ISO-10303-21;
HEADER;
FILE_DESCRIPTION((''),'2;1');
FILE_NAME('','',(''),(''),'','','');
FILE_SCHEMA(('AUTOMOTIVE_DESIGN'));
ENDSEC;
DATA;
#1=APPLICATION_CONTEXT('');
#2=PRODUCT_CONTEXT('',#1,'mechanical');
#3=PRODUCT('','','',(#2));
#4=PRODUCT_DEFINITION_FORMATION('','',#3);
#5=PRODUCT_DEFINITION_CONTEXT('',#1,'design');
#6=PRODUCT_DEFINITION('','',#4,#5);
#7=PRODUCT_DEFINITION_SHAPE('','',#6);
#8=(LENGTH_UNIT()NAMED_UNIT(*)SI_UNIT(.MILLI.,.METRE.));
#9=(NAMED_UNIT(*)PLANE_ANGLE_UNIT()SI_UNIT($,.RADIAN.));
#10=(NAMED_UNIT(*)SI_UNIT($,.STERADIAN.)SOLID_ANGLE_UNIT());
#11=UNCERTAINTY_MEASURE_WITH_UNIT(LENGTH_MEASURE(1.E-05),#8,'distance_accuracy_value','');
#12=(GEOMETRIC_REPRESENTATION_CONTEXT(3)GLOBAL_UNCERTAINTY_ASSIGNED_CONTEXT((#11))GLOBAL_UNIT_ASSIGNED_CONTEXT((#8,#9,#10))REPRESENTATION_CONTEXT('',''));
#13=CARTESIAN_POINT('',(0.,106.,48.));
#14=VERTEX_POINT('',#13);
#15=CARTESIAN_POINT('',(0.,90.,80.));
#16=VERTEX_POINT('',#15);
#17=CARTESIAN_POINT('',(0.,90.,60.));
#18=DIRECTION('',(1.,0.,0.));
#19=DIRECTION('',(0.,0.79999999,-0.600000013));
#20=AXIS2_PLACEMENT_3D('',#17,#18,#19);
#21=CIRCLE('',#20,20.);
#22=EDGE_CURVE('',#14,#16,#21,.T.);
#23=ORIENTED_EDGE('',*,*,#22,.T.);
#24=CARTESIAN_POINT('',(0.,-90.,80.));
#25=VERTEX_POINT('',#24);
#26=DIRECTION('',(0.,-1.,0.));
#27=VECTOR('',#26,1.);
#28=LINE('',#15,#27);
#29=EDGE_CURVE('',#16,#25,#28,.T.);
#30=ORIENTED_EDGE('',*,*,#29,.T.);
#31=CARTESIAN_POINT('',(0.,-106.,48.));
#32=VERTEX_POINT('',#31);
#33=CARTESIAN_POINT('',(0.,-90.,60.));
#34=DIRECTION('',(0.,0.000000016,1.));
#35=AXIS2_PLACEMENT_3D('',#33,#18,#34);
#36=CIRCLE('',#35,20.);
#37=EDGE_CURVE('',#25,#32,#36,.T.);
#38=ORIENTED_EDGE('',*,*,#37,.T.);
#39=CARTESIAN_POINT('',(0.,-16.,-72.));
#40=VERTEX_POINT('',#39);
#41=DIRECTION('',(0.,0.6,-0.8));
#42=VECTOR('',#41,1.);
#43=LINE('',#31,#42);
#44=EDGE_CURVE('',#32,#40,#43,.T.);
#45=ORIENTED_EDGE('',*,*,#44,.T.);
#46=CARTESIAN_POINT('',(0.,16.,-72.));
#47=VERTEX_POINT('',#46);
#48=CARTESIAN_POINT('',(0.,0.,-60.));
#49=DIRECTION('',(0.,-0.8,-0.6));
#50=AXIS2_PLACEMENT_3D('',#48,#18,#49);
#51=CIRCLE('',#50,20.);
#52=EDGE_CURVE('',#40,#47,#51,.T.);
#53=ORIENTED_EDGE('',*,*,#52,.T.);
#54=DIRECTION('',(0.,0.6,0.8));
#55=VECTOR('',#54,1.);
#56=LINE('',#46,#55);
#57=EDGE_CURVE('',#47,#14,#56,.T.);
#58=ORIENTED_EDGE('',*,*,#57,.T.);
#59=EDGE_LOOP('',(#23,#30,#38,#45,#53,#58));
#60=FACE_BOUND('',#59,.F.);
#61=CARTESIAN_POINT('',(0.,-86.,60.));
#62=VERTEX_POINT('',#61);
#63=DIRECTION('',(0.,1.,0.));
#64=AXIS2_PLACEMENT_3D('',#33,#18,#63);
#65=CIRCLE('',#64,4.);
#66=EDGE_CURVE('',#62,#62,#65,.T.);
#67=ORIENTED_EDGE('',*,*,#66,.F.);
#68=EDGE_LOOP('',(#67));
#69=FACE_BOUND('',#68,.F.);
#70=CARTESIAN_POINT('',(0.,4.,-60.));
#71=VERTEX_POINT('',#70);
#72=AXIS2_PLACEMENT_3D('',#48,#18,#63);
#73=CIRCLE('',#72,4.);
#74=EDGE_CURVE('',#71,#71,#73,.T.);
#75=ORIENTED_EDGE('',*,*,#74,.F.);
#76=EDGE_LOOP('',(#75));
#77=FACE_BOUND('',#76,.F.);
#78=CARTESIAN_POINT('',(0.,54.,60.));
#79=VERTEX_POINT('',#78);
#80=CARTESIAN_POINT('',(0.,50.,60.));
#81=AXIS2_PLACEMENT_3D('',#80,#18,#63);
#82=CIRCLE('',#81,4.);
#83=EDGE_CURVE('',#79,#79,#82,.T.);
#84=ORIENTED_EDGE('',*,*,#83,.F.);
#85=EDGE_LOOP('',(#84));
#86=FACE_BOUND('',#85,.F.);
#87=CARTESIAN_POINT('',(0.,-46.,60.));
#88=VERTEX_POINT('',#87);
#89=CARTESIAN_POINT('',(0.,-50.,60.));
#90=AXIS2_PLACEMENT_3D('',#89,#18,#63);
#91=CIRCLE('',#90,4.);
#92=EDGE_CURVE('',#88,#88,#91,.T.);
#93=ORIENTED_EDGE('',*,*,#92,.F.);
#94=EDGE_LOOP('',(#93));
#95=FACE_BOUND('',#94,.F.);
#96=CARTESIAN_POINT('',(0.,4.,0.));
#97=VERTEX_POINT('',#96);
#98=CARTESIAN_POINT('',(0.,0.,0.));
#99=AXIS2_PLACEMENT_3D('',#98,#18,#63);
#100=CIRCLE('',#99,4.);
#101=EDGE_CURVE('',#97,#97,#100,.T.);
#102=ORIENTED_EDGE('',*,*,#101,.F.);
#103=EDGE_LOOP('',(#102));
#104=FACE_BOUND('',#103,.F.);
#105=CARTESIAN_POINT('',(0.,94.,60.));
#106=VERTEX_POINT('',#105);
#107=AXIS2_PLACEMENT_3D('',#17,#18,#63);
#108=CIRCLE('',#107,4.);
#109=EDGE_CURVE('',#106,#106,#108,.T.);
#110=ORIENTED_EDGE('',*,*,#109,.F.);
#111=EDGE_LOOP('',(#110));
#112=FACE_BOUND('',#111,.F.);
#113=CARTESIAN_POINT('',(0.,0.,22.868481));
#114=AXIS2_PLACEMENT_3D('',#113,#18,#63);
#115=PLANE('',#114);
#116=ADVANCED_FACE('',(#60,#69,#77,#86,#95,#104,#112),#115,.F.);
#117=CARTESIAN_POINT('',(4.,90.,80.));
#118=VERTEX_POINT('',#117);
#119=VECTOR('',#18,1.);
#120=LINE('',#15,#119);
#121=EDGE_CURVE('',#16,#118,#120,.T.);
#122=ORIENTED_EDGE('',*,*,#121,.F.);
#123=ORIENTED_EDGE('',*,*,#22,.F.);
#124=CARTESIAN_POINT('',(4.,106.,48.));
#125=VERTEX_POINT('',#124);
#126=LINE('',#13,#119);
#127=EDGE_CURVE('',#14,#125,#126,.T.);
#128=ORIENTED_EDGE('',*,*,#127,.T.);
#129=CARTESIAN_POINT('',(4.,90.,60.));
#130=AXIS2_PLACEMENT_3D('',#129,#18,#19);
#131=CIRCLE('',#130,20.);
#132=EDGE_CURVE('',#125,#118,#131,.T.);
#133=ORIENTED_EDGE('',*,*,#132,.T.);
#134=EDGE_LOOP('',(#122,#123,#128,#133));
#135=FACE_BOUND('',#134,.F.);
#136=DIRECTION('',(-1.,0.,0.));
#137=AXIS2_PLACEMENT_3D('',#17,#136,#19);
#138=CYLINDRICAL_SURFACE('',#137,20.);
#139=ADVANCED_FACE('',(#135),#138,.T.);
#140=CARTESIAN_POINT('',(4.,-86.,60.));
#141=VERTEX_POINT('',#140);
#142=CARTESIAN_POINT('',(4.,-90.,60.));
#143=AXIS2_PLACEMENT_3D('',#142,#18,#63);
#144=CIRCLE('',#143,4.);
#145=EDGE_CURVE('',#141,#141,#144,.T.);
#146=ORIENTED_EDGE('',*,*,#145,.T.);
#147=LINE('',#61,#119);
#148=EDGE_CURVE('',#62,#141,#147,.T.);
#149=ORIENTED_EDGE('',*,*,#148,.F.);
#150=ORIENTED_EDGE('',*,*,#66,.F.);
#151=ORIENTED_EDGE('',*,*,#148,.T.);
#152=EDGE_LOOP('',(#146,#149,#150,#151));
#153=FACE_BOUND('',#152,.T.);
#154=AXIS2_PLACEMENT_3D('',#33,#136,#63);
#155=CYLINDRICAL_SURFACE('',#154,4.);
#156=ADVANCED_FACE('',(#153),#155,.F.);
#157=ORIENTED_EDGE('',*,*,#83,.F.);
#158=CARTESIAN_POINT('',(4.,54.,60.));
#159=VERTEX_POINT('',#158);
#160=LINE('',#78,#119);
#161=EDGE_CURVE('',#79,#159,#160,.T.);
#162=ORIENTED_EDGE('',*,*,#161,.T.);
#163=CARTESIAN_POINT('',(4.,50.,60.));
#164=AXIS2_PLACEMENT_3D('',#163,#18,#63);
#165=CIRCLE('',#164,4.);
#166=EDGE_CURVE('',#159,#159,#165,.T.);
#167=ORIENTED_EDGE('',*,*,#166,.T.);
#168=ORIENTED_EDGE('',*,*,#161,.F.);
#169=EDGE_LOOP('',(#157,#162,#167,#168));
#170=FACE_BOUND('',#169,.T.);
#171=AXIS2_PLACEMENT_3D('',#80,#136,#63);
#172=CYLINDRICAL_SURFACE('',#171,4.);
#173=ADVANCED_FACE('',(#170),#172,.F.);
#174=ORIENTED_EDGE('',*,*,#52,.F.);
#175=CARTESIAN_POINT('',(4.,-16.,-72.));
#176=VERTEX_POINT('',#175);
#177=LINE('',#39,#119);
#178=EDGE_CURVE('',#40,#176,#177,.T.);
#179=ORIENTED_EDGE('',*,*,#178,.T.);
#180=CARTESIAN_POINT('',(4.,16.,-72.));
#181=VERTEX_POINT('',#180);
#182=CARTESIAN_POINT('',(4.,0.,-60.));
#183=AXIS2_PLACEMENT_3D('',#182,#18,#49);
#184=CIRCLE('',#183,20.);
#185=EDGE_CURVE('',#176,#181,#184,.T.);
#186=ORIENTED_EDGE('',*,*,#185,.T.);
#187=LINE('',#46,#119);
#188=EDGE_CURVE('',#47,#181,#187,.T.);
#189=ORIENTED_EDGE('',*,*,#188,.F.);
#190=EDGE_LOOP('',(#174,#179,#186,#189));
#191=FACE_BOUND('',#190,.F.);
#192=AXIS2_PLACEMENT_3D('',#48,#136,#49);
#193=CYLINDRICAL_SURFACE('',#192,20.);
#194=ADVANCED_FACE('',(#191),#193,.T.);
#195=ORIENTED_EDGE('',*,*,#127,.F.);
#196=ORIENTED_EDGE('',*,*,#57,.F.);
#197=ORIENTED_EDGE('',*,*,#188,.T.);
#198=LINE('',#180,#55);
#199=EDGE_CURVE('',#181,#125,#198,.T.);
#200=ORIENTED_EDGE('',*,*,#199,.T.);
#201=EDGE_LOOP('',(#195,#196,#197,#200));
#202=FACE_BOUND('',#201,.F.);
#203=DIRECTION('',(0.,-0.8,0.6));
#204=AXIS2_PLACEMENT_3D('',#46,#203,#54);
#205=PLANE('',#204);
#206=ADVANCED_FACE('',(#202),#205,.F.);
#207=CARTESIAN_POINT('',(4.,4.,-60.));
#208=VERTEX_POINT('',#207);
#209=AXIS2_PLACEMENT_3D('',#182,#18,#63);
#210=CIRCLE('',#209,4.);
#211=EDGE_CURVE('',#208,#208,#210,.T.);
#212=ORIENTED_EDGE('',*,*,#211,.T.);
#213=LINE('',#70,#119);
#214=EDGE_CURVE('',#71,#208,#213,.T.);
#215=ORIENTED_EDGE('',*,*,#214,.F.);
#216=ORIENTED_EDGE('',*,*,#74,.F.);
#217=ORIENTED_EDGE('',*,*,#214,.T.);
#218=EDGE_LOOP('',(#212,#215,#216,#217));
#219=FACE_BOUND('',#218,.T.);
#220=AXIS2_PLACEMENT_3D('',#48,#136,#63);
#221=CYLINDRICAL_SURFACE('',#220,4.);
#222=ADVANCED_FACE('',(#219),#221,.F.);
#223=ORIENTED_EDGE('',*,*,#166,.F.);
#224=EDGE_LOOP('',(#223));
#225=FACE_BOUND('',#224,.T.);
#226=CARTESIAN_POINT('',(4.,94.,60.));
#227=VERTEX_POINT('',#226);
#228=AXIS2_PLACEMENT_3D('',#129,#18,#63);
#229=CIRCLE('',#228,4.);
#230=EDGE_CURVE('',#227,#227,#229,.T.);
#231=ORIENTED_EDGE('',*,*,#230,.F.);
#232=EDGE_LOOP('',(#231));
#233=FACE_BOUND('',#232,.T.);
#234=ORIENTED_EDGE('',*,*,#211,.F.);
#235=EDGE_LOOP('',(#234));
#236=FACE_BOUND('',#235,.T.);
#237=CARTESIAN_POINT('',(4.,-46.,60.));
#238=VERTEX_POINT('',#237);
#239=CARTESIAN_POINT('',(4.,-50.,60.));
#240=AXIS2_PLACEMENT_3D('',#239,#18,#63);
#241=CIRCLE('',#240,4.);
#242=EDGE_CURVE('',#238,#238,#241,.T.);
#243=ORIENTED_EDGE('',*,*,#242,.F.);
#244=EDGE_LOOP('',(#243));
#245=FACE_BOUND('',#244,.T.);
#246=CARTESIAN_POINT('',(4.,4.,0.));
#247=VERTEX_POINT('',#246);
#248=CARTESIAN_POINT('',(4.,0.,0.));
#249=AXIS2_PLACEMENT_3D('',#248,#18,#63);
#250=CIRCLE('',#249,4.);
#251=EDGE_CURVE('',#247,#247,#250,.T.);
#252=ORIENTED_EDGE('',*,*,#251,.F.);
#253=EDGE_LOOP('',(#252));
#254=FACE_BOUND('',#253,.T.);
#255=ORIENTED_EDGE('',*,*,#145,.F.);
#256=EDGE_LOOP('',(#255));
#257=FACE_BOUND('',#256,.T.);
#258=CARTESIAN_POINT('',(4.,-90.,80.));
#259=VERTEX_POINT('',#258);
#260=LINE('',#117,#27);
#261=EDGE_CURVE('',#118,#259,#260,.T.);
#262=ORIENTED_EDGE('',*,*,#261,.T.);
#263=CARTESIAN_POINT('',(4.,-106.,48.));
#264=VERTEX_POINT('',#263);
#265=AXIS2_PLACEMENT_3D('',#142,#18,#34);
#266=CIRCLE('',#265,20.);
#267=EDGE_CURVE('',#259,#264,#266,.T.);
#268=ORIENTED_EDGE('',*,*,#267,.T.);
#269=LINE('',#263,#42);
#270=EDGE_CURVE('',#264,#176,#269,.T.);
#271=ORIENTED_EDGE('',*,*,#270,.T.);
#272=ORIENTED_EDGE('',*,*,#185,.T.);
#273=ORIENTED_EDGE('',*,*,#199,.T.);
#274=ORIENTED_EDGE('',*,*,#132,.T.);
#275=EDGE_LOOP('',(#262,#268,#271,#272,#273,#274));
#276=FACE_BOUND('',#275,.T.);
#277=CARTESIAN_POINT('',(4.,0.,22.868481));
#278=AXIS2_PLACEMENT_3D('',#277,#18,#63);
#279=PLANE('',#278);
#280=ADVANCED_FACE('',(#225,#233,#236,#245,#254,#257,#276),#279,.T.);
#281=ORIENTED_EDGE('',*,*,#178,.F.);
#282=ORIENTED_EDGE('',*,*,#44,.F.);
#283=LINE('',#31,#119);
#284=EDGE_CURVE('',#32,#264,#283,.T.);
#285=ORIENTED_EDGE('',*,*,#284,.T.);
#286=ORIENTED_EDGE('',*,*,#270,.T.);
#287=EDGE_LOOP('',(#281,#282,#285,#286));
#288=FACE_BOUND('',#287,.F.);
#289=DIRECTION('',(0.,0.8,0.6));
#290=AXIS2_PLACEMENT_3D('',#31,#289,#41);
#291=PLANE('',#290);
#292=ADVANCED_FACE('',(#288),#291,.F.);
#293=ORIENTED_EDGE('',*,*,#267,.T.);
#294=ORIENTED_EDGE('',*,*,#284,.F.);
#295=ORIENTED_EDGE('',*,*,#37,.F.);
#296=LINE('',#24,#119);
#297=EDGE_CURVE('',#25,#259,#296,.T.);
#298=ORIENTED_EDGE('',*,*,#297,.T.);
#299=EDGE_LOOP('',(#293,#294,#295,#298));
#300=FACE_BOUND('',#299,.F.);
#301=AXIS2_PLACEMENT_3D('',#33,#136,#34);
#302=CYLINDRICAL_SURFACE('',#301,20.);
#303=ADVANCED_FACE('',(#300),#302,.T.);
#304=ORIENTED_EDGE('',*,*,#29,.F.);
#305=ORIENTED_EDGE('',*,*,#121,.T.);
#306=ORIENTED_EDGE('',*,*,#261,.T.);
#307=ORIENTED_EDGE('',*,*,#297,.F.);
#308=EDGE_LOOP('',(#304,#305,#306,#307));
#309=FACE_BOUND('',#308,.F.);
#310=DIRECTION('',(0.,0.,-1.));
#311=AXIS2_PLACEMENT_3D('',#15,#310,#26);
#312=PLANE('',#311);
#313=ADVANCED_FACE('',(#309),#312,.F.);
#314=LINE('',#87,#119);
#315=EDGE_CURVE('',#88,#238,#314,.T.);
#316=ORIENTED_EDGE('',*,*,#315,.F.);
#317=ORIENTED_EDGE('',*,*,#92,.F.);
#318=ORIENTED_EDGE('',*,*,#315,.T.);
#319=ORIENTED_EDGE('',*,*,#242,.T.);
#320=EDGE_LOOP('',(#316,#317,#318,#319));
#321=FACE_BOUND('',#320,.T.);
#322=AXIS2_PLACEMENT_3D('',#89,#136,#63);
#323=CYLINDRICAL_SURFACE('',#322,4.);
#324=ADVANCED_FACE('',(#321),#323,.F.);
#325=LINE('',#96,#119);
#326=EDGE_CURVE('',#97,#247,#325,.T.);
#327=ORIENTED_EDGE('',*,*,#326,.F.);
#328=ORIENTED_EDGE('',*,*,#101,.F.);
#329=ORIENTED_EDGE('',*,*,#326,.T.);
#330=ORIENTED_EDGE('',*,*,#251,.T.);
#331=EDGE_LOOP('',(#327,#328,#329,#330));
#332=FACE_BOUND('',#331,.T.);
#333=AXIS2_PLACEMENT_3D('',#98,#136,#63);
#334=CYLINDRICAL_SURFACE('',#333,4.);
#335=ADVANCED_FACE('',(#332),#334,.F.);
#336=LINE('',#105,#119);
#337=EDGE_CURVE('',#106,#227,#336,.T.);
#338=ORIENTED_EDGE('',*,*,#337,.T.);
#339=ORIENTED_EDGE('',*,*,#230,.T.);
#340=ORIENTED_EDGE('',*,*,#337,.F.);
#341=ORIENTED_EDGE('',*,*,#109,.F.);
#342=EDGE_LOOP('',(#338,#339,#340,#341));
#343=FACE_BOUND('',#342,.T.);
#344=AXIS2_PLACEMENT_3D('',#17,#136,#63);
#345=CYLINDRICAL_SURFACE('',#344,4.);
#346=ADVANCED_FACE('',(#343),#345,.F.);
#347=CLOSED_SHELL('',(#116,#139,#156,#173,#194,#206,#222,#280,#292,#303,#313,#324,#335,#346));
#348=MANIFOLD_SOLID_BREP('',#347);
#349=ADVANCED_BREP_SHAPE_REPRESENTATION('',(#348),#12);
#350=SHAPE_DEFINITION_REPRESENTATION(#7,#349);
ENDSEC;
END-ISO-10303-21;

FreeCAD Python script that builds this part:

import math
import FreeCAD as App
import Part
import Sketcher
from FreeCAD import Vector
Q = App.Units.Quantity

doc = App.newDocument("Part")
body = doc.addObject("PartDesign::Body", "Body")

sketch1 = doc.addObject("Sketcher::SketchObject", "Sketch")
body.addObject(sketch1)
sketch1.AttachmentSupport = (doc.YZ_Plane, [""])
sketch1.MapMode = "FlatFace"
sketch1.addGeometry([
    Part.LineSegment(Vector(-106, 48, 0), Vector(-16, -72, 0)),
    Part.ArcOfCircle(Part.Circle(Vector(0, -60, 0), Vector(0, 0, 1), 20), math.radians(-143.130102), math.radians(-36.869898)),
    Part.LineSegment(Vector(16, -72, 0), Vector(106, 48, 0)),
    Part.ArcOfCircle(Part.Circle(Vector(90, 60, 0), Vector(0, 0, 1), 20), math.radians(-36.869899), math.radians(90.000001)),
    Part.LineSegment(Vector(90, 80, 0), Vector(-90, 80, 0)),
    Part.ArcOfCircle(Part.Circle(Vector(-90, 60, 0), Vector(0, 0, 1), 20), math.radians(89.999999), math.radians(216.869899)),
    Part.Circle(Vector(0, -60, 0), Vector(0, 0, 1), 4),
    Part.Circle(Vector(-90, 60, 0), Vector(0, 0, 1), 4),
    Part.Circle(Vector(-50, 60, 0), Vector(0, 0, 1), 4),
    Part.Circle(Vector(0, 0, 0), Vector(0, 0, 1), 4),
    Part.Circle(Vector(50, 60, 0), Vector(0, 0, 1), 4),
    Part.Circle(Vector(90, 60, 0), Vector(0, 0, 1), 4),
], False)
sketch1.addConstraint([
    Sketcher.Constraint("Tangent", 0, 2, 1, 1),
    Sketcher.Constraint("Tangent", 1, 2, 2, 1),
    Sketcher.Constraint("Tangent", 2, 2, 3, 1),
    Sketcher.Constraint("Tangent", 3, 2, 4, 1),
    Sketcher.Constraint("Tangent", 4, 2, 5, 1),
    Sketcher.Constraint("Tangent", 5, 2, 0, 1),
    Sketcher.Constraint("Horizontal", 4),
    Sketcher.Constraint("Coincident", 9, 3, -1, 1),
    Sketcher.Constraint("Coincident", 6, 3, 1, 3),
    Sketcher.Constraint("Coincident", 7, 3, 5, 3),
    Sketcher.Constraint("Coincident", 11, 3, 3, 3),
    Sketcher.Constraint("Equal", 1, 3),
    Sketcher.Constraint("Equal", 3, 5),
    Sketcher.Constraint("Equal", 6, 7),
    Sketcher.Constraint("Equal", 7, 8),
    Sketcher.Constraint("Equal", 8, 9),
    Sketcher.Constraint("Equal", 9, 10),
    Sketcher.Constraint("Equal", 10, 11),
    Sketcher.Constraint("Symmetric", 8, 3, 10, 3, -2),
    Sketcher.Constraint("Symmetric", 0, 2, 1, 2, -2),
    Sketcher.Constraint("Horizontal", 7, 3, 8, 3),
    Sketcher.Constraint("Diameter", 6, Q("8 mm")),
    Sketcher.Constraint("Radius", 1, Q("20 mm")),
    Sketcher.Constraint("DistanceX", 4, 2, 4, 1, Q("180 mm")),
    Sketcher.Constraint("Distance", 0, Q("150 mm")),
    Sketcher.Constraint("DistanceY", 1, 3, -1, 1, Q("60 mm")),
    Sketcher.Constraint("DistanceX", 8, 3, -1, 1, Q("50 mm")),
])
pad1 = doc.addObject("PartDesign::Pad", "Pad")
body.addObject(pad1)
pad1.Profile = sketch1
pad1.Length = 4

doc.recompute()
